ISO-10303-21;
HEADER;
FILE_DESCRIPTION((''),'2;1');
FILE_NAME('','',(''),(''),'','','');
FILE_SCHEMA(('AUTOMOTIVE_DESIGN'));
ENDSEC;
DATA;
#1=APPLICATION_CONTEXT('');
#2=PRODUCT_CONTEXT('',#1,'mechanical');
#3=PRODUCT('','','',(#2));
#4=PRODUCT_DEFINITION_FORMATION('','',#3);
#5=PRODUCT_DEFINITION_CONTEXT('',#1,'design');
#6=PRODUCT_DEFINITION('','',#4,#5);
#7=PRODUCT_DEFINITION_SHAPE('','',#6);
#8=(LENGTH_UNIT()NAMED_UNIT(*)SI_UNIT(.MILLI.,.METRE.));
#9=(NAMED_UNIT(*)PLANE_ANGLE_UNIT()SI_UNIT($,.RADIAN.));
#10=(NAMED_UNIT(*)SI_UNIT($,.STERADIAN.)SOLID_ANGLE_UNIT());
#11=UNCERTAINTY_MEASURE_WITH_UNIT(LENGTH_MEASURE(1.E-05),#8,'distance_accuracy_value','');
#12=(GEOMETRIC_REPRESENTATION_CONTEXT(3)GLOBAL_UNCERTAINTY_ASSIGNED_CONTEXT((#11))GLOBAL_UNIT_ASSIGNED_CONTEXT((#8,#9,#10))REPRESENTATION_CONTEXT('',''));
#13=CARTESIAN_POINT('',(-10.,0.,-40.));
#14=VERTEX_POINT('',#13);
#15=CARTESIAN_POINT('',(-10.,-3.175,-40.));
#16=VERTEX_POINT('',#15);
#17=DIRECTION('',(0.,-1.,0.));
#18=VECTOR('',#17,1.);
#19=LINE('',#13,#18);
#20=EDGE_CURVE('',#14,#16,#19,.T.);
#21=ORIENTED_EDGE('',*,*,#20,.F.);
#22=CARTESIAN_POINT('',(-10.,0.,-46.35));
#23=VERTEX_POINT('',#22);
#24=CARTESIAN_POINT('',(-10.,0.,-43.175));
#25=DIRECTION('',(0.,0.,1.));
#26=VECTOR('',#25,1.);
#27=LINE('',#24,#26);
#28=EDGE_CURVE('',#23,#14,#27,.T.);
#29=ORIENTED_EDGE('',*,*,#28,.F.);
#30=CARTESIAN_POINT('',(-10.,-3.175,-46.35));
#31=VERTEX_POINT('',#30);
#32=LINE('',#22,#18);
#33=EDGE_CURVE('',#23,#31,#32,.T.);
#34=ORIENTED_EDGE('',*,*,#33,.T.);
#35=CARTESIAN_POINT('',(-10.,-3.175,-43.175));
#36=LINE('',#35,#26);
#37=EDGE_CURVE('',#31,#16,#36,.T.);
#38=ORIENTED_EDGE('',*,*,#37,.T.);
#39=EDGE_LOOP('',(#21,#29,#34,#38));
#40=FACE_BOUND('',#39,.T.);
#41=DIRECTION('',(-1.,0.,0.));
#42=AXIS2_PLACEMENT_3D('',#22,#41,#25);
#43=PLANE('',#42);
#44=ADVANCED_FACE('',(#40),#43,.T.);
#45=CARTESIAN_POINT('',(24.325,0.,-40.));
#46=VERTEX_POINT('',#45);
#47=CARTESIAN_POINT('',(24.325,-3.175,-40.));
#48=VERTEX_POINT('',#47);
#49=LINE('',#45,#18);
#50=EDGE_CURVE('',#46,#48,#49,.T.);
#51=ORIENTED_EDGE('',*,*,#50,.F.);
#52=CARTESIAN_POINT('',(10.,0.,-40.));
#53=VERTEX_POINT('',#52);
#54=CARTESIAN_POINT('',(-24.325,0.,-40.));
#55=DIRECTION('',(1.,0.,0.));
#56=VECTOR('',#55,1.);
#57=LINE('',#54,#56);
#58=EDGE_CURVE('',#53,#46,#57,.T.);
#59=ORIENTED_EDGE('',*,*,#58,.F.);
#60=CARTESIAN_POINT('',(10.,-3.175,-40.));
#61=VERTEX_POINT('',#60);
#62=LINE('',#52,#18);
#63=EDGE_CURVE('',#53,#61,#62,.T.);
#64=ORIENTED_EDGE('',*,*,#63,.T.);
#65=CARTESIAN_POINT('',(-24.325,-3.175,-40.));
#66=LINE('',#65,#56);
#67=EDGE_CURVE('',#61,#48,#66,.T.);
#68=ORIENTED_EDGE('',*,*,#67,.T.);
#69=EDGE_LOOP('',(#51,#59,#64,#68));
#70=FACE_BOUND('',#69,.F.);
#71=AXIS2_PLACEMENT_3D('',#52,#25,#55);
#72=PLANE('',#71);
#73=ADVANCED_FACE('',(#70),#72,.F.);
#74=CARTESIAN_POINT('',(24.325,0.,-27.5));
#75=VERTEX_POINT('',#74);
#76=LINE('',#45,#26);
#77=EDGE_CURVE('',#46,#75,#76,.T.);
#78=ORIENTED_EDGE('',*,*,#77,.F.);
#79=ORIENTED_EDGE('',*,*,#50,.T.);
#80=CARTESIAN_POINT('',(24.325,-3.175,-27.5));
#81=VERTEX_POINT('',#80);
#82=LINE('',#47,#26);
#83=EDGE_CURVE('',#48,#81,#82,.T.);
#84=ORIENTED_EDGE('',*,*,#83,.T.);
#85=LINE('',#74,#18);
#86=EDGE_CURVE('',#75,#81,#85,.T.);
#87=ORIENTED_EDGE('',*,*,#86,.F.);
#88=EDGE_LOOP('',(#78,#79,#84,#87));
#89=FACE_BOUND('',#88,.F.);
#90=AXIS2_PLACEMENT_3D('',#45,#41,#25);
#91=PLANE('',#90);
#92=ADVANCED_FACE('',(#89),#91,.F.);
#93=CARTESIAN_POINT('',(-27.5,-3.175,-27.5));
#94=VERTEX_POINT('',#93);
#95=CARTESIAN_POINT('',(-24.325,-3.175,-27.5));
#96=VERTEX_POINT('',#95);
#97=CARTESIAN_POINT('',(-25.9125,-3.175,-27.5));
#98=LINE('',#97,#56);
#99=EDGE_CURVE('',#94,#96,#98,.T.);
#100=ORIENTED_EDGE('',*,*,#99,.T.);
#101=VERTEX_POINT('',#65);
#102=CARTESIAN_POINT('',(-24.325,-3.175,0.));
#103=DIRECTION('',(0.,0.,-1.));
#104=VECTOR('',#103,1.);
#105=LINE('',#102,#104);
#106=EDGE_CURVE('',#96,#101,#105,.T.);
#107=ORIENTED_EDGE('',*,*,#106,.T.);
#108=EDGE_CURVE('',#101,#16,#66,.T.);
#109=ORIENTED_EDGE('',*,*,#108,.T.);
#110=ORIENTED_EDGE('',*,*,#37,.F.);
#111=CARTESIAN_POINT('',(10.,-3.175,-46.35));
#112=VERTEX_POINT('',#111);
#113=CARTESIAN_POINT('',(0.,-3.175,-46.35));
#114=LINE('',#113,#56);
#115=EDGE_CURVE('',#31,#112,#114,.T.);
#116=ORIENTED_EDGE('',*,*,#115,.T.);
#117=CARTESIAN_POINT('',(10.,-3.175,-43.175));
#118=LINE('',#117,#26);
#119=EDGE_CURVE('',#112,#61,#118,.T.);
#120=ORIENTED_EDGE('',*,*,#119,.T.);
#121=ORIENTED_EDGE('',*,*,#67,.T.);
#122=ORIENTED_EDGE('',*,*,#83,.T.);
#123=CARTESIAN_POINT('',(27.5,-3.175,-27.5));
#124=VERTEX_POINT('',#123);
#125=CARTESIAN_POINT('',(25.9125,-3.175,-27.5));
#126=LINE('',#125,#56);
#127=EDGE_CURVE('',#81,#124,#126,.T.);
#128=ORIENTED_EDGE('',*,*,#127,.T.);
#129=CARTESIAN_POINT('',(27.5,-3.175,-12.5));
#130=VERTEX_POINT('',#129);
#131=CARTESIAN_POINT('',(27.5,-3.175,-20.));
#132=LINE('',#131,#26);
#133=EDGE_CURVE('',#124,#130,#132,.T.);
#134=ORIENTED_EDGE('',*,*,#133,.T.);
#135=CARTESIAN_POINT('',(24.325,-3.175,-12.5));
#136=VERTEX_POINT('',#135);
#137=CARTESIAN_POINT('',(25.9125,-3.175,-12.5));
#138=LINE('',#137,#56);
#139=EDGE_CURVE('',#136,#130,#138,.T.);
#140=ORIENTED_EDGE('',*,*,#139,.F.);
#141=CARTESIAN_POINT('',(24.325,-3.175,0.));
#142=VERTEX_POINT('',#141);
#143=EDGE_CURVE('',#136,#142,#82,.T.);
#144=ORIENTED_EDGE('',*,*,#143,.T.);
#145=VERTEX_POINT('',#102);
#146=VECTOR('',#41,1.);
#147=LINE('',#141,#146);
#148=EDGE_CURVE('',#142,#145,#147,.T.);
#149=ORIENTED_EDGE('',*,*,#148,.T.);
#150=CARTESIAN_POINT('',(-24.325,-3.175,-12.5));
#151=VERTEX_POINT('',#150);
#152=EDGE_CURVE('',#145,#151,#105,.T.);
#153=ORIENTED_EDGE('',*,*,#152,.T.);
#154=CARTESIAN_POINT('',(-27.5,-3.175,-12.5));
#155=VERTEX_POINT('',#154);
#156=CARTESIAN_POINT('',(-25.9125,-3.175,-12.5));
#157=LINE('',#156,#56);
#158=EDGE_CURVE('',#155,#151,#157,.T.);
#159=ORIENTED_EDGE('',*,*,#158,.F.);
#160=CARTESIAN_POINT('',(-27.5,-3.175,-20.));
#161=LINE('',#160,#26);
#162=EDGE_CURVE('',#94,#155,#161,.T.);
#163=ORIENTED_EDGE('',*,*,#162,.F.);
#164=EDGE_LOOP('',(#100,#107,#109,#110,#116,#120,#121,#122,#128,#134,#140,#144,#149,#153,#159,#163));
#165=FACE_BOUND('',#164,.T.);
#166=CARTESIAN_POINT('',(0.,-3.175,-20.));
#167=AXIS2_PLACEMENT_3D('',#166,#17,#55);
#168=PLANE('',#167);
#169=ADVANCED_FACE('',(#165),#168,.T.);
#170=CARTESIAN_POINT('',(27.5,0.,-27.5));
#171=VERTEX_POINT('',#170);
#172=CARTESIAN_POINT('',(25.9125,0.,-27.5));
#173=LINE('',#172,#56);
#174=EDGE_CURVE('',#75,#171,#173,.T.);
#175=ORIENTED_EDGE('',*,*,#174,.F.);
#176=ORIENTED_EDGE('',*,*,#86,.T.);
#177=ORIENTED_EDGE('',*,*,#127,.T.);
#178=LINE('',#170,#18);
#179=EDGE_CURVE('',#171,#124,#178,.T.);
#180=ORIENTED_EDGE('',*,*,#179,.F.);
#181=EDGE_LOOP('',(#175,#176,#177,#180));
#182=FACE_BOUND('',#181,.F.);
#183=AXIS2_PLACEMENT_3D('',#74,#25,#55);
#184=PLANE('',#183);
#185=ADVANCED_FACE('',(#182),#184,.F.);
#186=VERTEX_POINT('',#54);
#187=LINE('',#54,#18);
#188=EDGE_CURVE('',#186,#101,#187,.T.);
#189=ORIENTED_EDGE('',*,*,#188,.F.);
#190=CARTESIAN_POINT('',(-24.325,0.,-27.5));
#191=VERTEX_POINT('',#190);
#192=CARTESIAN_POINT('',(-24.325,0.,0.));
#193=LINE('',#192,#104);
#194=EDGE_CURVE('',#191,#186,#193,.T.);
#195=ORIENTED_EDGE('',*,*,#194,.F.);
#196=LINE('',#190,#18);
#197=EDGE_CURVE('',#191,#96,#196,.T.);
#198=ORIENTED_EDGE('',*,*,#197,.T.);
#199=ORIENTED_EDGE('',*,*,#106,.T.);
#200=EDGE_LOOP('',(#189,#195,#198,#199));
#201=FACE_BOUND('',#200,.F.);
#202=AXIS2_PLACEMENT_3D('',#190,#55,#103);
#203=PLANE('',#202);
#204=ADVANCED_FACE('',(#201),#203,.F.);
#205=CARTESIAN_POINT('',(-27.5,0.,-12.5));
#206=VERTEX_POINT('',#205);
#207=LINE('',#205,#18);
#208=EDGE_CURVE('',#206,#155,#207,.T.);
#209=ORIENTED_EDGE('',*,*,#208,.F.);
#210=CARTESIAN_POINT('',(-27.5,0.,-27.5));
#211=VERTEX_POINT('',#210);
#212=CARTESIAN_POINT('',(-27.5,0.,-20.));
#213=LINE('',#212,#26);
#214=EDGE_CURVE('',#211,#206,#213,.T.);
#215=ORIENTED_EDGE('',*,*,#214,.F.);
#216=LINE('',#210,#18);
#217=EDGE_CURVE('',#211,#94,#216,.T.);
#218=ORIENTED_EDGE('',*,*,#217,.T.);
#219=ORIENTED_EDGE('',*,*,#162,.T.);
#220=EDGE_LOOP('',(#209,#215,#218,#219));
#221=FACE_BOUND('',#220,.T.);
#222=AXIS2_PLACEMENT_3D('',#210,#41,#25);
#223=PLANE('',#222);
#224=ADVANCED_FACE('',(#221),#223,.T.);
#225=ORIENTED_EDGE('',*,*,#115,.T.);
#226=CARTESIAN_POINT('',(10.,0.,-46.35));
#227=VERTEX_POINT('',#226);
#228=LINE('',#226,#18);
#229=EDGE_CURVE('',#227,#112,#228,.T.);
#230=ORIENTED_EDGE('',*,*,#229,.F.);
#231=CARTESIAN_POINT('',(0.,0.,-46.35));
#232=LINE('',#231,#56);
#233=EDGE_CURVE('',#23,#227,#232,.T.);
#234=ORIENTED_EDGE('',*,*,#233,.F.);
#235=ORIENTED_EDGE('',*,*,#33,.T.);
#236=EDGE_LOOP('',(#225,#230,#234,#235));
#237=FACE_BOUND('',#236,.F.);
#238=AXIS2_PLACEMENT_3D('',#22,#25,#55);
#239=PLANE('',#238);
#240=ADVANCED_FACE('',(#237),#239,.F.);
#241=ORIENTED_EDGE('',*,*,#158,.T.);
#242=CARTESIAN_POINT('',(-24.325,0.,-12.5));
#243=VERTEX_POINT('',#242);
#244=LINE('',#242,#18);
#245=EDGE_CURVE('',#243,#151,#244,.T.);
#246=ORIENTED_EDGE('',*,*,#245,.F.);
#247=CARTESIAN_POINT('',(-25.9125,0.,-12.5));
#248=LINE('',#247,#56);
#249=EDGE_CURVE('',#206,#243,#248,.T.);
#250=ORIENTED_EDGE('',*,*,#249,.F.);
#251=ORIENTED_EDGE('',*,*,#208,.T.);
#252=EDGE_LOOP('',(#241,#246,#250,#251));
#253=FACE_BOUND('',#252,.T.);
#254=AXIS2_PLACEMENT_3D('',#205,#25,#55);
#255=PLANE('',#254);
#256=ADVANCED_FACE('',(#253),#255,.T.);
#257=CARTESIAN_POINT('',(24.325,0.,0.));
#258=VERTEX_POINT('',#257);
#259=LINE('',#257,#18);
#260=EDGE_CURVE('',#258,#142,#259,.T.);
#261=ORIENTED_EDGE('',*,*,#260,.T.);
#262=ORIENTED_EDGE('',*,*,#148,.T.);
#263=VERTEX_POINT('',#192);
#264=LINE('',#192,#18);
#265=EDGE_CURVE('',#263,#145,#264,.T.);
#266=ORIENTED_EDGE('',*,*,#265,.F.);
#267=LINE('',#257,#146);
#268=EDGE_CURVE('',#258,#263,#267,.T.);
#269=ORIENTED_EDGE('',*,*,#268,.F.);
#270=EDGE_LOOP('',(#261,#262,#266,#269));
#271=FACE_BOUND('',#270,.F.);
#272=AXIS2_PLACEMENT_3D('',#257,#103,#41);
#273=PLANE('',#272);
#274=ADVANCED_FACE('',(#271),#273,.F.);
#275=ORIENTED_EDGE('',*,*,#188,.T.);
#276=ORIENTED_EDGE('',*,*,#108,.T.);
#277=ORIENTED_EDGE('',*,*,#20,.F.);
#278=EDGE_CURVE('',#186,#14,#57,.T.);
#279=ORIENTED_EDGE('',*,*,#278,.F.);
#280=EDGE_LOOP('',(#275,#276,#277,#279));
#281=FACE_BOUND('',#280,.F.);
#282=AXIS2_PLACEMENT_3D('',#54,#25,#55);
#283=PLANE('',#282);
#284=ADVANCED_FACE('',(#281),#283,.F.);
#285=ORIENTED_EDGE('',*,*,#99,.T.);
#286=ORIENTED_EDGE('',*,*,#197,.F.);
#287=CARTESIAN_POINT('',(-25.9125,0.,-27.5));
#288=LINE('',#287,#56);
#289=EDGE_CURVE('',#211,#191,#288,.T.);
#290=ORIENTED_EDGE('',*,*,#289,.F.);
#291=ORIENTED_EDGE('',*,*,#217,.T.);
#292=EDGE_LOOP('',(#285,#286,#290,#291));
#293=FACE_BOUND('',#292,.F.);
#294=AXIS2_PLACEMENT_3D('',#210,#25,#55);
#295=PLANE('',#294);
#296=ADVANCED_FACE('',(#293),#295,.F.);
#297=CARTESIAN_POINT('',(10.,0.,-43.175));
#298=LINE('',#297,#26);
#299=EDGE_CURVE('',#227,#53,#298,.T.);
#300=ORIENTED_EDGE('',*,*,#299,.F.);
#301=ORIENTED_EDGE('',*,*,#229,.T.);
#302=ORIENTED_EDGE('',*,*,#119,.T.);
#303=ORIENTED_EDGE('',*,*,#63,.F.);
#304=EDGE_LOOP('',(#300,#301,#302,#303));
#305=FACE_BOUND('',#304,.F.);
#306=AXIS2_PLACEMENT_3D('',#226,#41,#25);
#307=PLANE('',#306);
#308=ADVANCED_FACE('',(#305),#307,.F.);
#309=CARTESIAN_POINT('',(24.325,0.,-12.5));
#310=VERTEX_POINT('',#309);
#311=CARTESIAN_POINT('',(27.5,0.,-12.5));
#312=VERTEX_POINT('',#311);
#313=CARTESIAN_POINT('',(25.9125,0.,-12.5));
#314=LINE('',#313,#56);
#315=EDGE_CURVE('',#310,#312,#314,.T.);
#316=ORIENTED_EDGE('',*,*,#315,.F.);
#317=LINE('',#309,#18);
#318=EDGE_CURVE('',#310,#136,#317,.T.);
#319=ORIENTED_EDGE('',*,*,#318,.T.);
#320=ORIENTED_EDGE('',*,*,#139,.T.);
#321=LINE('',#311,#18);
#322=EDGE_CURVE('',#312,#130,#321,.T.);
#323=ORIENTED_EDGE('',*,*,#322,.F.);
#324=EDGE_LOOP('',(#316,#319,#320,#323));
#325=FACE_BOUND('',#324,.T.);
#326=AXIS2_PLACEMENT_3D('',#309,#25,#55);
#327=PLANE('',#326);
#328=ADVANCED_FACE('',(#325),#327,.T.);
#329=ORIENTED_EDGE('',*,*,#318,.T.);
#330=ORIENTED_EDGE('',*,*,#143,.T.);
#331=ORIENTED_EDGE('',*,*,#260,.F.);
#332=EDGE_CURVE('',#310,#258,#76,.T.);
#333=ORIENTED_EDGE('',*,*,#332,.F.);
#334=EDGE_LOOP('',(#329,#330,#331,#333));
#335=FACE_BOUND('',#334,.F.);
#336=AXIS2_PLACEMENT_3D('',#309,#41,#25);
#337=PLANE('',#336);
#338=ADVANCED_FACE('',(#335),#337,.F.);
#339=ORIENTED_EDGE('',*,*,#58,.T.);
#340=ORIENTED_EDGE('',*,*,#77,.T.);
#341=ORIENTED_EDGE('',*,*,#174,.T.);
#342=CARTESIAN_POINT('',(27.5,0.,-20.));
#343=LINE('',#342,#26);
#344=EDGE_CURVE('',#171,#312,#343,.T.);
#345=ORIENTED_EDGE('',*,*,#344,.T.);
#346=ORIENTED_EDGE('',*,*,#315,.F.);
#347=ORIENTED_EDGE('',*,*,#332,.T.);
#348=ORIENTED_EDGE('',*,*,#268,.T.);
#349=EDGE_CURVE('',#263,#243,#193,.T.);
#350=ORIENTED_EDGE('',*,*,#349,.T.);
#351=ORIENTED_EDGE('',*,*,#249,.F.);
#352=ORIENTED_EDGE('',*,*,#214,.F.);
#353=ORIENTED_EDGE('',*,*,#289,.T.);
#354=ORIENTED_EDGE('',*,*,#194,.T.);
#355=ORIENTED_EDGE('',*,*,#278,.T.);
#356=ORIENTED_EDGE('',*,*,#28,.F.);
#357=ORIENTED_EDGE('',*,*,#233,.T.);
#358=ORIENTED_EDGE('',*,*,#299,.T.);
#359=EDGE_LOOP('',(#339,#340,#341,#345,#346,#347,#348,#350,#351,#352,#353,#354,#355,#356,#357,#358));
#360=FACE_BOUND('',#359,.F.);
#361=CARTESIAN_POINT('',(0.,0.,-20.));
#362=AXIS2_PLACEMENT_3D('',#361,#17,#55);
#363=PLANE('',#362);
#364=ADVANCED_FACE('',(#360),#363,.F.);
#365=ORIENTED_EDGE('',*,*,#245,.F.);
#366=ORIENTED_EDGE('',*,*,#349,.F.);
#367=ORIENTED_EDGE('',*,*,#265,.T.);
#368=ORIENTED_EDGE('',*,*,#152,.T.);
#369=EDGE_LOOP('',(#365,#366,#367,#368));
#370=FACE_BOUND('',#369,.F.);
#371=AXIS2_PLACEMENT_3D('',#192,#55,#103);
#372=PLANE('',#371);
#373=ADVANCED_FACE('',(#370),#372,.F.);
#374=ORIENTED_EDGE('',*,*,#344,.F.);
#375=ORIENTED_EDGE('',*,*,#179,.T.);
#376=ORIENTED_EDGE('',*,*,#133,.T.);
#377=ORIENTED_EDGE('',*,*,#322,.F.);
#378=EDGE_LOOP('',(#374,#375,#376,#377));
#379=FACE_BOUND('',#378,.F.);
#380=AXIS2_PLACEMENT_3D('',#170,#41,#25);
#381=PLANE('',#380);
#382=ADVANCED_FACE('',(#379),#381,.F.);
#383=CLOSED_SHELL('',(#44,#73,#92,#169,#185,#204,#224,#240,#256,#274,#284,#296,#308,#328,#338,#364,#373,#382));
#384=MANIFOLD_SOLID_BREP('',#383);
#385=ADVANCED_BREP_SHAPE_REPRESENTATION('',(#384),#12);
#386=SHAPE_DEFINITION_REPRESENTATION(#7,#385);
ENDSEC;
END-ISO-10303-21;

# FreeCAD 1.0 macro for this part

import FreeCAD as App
import Part
import Sketcher
Q = App.Units.Quantity


def add_polygon(sketch, points):
    """Adds a closed chain of lines whose ends are joined by coincident constraints."""
    first, n = sketch.GeometryCount, len(points)
    for a, b in zip(points, points[1:] + points[:1]):
        sketch.addGeometry(Part.LineSegment(App.Vector(*a, 0), App.Vector(*b, 0)), False)
    for i in range(n):
        sketch.addConstraint(Sketcher.Constraint("Coincident", first + i, 2, first + (i + 1) % n, 1))

doc = App.newDocument("Part")
body = doc.addObject("PartDesign::Body", "Body")

sketch1 = body.newObject("Sketcher::SketchObject", "Sketch")
sketch1.AttachmentSupport = (doc.getObject("XZ_Plane"), [""])
sketch1.MapMode = "FlatFace"
add_polygon(sketch1, [(24.3, 0), (-24.3, 0), (-24.3, -12.5), (-27.5, -12.5), (-27.5, -27.5), (-24.3, -27.5), (-24.3, -40), (-10, -40), (-10, -46.4), (10, -46.4), (10, -40), (24.3, -40), (24.3, -27.5), (27.5, -27.5), (27.5, -12.5), (24.3, -12.5)])
sketch1.addConstraint([
    Sketcher.Constraint("Horizontal", 0),
    Sketcher.Constraint("Vertical", 1),
    Sketcher.Constraint("Horizontal", 2),
    Sketcher.Constraint("Vertical", 3),
    Sketcher.Constraint("Horizontal", 4),
    Sketcher.Constraint("Vertical", 5),
    Sketcher.Constraint("Horizontal", 6),
    Sketcher.Constraint("Vertical", 7),
    Sketcher.Constraint("Horizontal", 8),
    Sketcher.Constraint("Vertical", 9),
    Sketcher.Constraint("Horizontal", 10),
    Sketcher.Constraint("Vertical", 11),
    Sketcher.Constraint("Horizontal", 12),
    Sketcher.Constraint("Vertical", 13),
    Sketcher.Constraint("Horizontal", 14),
    Sketcher.Constraint("Vertical", 15),
    Sketcher.Constraint("Symmetric", 0, 2, 15, 2, -1, 1),
    Sketcher.Constraint("Symmetric", 6, 2, 9, 2, -2),
    Sketcher.Constraint("Symmetric", 4, 2, 11, 2, -2),
    Sketcher.Constraint("Symmetric", 2, 2, 13, 2, -2),
    Sketcher.Constraint("Vertical", 1, 2, 4, 2),
    Sketcher.Constraint("Equal", 1, 5),
    Sketcher.Constraint("DistanceX", 8, 1, 8, 2, Q("20 mm")),
    Sketcher.Constraint("DistanceY", 3, 2, 3, 1, Q("15 mm")),
    Sketcher.Constraint("DistanceY", 1, 2, 1, 1, Q("12.5 mm")),
    Sketcher.Constraint("DistanceX", 0, 2, 0, 1, Q("48.65 mm")),
    Sketcher.Constraint("DistanceY", 7, 2, 7, 1, Q("6.35 mm")),
    Sketcher.Constraint("DistanceX", 2, 2, -1, 1, Q("27.5 mm")),
])
pad1 = body.newObject("PartDesign::Pad", "Pad")
pad1.Profile = sketch1
pad1.Length = 3.175

doc.recompute()
